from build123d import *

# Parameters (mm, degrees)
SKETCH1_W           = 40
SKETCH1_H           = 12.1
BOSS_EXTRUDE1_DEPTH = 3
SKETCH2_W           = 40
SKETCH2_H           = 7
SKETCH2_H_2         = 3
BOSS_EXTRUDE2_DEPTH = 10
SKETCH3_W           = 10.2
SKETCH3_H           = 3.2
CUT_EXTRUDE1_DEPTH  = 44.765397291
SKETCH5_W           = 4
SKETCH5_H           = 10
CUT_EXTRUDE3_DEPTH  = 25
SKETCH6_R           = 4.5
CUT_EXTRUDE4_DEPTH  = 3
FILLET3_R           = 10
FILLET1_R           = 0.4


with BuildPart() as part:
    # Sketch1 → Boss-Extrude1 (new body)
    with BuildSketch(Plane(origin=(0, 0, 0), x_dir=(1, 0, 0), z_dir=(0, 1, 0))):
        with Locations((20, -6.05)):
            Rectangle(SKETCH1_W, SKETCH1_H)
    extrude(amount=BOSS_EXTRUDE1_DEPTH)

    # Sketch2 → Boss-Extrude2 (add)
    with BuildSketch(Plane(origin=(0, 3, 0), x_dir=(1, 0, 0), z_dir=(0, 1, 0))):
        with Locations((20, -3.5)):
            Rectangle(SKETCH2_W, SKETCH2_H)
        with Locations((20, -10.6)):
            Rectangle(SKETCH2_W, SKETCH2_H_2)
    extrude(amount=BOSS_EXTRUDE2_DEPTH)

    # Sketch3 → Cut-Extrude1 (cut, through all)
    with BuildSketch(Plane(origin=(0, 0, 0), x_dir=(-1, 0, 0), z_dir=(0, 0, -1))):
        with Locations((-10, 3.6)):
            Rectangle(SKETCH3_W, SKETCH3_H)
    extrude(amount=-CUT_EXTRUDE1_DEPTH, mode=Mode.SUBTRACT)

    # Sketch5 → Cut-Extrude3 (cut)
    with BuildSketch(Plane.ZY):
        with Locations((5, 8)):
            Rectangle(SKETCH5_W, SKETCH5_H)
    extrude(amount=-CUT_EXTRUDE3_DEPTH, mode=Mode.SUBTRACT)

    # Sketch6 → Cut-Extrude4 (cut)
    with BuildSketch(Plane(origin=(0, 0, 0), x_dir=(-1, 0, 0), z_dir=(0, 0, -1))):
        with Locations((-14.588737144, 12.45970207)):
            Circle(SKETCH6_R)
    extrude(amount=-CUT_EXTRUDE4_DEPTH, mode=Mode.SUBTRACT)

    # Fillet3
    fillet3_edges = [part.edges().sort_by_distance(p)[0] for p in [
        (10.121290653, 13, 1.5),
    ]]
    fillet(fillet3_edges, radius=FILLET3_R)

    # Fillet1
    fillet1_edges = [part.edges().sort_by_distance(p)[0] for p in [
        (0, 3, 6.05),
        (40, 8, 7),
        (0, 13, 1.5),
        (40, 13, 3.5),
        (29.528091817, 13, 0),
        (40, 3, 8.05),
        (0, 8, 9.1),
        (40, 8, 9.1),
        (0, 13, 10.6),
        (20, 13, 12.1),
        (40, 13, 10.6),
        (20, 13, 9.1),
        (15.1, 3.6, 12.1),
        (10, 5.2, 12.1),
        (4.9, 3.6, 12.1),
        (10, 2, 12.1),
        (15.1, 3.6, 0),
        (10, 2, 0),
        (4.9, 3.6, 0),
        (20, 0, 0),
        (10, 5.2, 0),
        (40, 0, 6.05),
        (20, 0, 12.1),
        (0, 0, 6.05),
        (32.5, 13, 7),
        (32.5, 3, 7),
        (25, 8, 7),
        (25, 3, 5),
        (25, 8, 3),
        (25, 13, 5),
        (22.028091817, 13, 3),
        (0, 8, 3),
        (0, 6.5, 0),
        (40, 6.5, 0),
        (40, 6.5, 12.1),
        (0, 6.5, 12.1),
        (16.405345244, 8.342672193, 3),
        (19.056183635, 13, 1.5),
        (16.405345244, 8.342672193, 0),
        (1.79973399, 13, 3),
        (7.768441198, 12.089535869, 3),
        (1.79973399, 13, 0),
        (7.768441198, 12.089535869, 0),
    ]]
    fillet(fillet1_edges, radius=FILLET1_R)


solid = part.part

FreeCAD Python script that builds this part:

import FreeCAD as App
import Part
import Sketcher
Q = App.Units.Quantity


def edges_at(feature, points):
    """Names of the edges that pass closest to the given points."""
    edges = feature.Shape.Edges
    near = lambda p: min(range(len(edges)), key=lambda i: edges[i].distToShape(Part.Vertex(*p))[0])
    return sorted({f"Edge{near(p) + 1}" for p in points})

doc = App.newDocument("Part")
params = doc.addObject("Spreadsheet::Sheet", "Params")
for row, (alias, value) in enumerate([
    ("sketch1_width", "40 mm"),
    ("sketch1_height", "12.1 mm"),
    ("pad1_length", "3 mm"),
    ("sketch2_width", "40 mm"),
    ("sketch2_height", "7 mm"),
    ("sketch2_height2", "3 mm"),
    ("pad2_length", "10 mm"),
    ("sketch3_width", "10.2 mm"),
    ("sketch3_height", "3.2 mm"),
    ("sketch4_width", "10 mm"),
    ("sketch4_height", "4 mm"),
    ("pocket2_length", "25 mm"),
    ("sketch5_diameter", "9 mm"),
    ("pocket3_length", "3 mm"),
    ("fillet_radius", "10 mm"),
    ("fillet2_radius", "0.4 mm"),
], start=1):
    params.set(f"A{row}", alias)
    params.set(f"B{row}", "=" + value)
    params.setAlias(f"B{row}", alias)

body = doc.addObject("PartDesign::Body", "Body")

# Sketch on XZ plane
sketch1 = body.newObject("Sketcher::SketchObject", "Sketch")
sketch1.AttachmentSupport = (doc.getObject("XZ_Plane"), [""])
sketch1.MapMode = "FlatFace"
sketch1.addGeometry(Part.LineSegment(App.Vector(0, 0, 0), App.Vector(0, 12.1, 0)), False)
sketch1.addGeometry(Part.LineSegment(App.Vector(0, 12.1, 0), App.Vector(40, 12.1, 0)), False)
sketch1.addGeometry(Part.LineSegment(App.Vector(40, 12.1, 0), App.Vector(40, 0, 0)), False)
sketch1.addGeometry(Part.LineSegment(App.Vector(40, 0, 0), App.Vector(0, 0, 0)), False)
sketch1.addConstraint(Sketcher.Constraint("Coincident", 0, 2, 1, 1))
sketch1.addConstraint(Sketcher.Constraint("Coincident", 1, 2, 2, 1))
sketch1.addConstraint(Sketcher.Constraint("Coincident", 2, 2, 3, 1))
sketch1.addConstraint(Sketcher.Constraint("Coincident", 3, 2, 0, 1))
sketch1.addConstraint(Sketcher.Constraint("Vertical", 0))
sketch1.addConstraint(Sketcher.Constraint("Horizontal", 1))
sketch1.addConstraint(Sketcher.Constraint("Vertical", 2))
sketch1.addConstraint(Sketcher.Constraint("Horizontal", 3))
sketch1.addConstraint(Sketcher.Constraint("Coincident", 3, 2, -1, 1))
sketch1.addConstraint(Sketcher.Constraint("DistanceX", 1, 1, 1, 2, Q("40 mm")))
sketch1.addConstraint(Sketcher.Constraint("DistanceY", 0, 1, 0, 2, Q("12.1 mm")))
sketch1.setExpression("Constraints[9]", "Params.sketch1_width")
sketch1.setExpression("Constraints[10]", "Params.sketch1_height")
pad1 = body.newObject("PartDesign::Pad", "Pad")
pad1.Profile = sketch1
pad1.setExpression("Length", "Params.pad1_length")
pad1.Reversed = True

# Sketch on XZ plane
sketch2 = body.newObject("Sketcher::SketchObject", "Sketch001")
sketch2.AttachmentSupport = (doc.getObject("XZ_Plane"), [""])
sketch2.MapMode = "FlatFace"
sketch2.AttachmentOffset = App.Placement(App.Vector(0, 0, -3), App.Rotation())
sketch2.addGeometry(Part.LineSegment(App.Vector(0, 0, 0), App.Vector(0, 7, 0)), False)
sketch2.addGeometry(Part.LineSegment(App.Vector(0, 7, 0), App.Vector(40, 7, 0)), False)
sketch2.addGeometry(Part.LineSegment(App.Vector(40, 7, 0), App.Vector(40, 0, 0)), False)
sketch2.addGeometry(Part.LineSegment(App.Vector(40, 0, 0), App.Vector(0, 0, 0)), False)
sketch2.addGeometry(Part.LineSegment(App.Vector(0, 9.1, 0), App.Vector(0, 12.1, 0)), False)
sketch2.addGeometry(Part.LineSegment(App.Vector(0, 12.1, 0), App.Vector(40, 12.1, 0)), False)
sketch2.addGeometry(Part.LineSegment(App.Vector(40, 12.1, 0), App.Vector(40, 9.1, 0)), False)
sketch2.addGeometry(Part.LineSegment(App.Vector(40, 9.1, 0), App.Vector(0, 9.1, 0)), False)
sketch2.addConstraint(Sketcher.Constraint("Coincident", 0, 2, 1, 1))
sketch2.addConstraint(Sketcher.Constraint("Coincident", 1, 2, 2, 1))
sketch2.addConstraint(Sketcher.Constraint("Coincident", 2, 2, 3, 1))
sketch2.addConstraint(Sketcher.Constraint("Coincident", 3, 2, 0, 1))
sketch2.addConstraint(Sketcher.Constraint("Coincident", 4, 2, 5, 1))
sketch2.addConstraint(Sketcher.Constraint("Coincident", 5, 2, 6, 1))
sketch2.addConstraint(Sketcher.Constraint("Coincident", 6, 2, 7, 1))
sketch2.addConstraint(Sketcher.Constraint("Coincident", 7, 2, 4, 1))
sketch2.addConstraint(Sketcher.Constraint("Vertical", 0))
sketch2.addConstraint(Sketcher.Constraint("Horizontal", 1))
sketch2.addConstraint(Sketcher.Constraint("Vertical", 2))
sketch2.addConstraint(Sketcher.Constraint("Horizontal", 3))
sketch2.addConstraint(Sketcher.Constraint("Vertical", 4))
sketch2.addConstraint(Sketcher.Constraint("Horizontal", 5))
sketch2.addConstraint(Sketcher.Constraint("Vertical", 6))
sketch2.addConstraint(Sketcher.Constraint("Horizontal", 7))
sketch2.addConstraint(Sketcher.Constraint("Coincident", 3, 2, -1, 1))
sketch2.addConstraint(Sketcher.Constraint("PointOnObject", 4, 2, -2))
sketch2.addConstraint(Sketcher.Constraint("Vertical", 2, 2, 5, 2))
sketch2.addConstraint(Sketcher.Constraint("DistanceX", 1, 1, 1, 2, Q("40 mm")))
sketch2.addConstraint(Sketcher.Constraint("DistanceY", 0, 1, 0, 2, Q("7 mm")))
sketch2.addConstraint(Sketcher.Constraint("DistanceY", 4, 1, 4, 2, Q("3 mm")))
sketch2.addConstraint(Sketcher.Constraint("DistanceY", -1, 1, 4, 2, Q("12.1 mm")))
sketch2.setExpression("Constraints[19]", "Params.sketch2_width")
sketch2.setExpression("Constraints[20]", "Params.sketch2_height")
sketch2.setExpression("Constraints[21]", "Params.sketch2_height2")
pad2 = body.newObject("PartDesign::Pad", "Pad001")
pad2.Profile = sketch2
pad2.setExpression("Length", "Params.pad2_length")
pad2.Reversed = True

# Sketch on XY plane
sketch3 = body.newObject("Sketcher::SketchObject", "Sketch002")
sketch3.AttachmentSupport = (doc.getObject("XY_Plane"), [""])
sketch3.MapMode = "FlatFace"
sketch3.addGeometry(Part.LineSegment(App.Vector(15.1, 5.2, 0), App.Vector(15.1, 2, 0)), False)
sketch3.addGeometry(Part.LineSegment(App.Vector(15.1, 2, 0), App.Vector(4.9, 2, 0)), False)
sketch3.addGeometry(Part.LineSegment(App.Vector(4.9, 2, 0), App.Vector(4.9, 5.2, 0)), False)
sketch3.addGeometry(Part.LineSegment(App.Vector(4.9, 5.2, 0), App.Vector(15.1, 5.2, 0)), False)
sketch3.addConstraint(Sketcher.Constraint("Coincident", 0, 2, 1, 1))
sketch3.addConstraint(Sketcher.Constraint("Coincident", 1, 2, 2, 1))
sketch3.addConstraint(Sketcher.Constraint("Coincident", 2, 2, 3, 1))
sketch3.addConstraint(Sketcher.Constraint("Coincident", 3, 2, 0, 1))
sketch3.addConstraint(Sketcher.Constraint("Vertical", 0))
sketch3.addConstraint(Sketcher.Constraint("Horizontal", 1))
sketch3.addConstraint(Sketcher.Constraint("Vertical", 2))
sketch3.addConstraint(Sketcher.Constraint("Horizontal", 3))
sketch3.addConstraint(Sketcher.Constraint("DistanceX", 1, 2, 1, 1, Q("10.2 mm")))
sketch3.addConstraint(Sketcher.Constraint("DistanceY", 0, 2, 0, 1, Q("3.2 mm")))
sketch3.addConstraint(Sketcher.Constraint("DistanceY", -1, 1, 0, 2, Q("2 mm")))
sketch3.addConstraint(Sketcher.Constraint("DistanceX", -1, 1, 0, 2, Q("15.1 mm")))
sketch3.setExpression("Constraints[8]", "Params.sketch3_width")
sketch3.setExpression("Constraints[9]", "Params.sketch3_height")
pocket1 = body.newObject("PartDesign::Pocket", "Pocket")
pocket1.Profile = sketch3
pocket1.Type = "ThroughAll"
pocket1.Reversed = True

# Sketch on YZ plane
sketch4 = body.newObject("Sketcher::SketchObject", "Sketch003")
sketch4.AttachmentSupport = (doc.getObject("YZ_Plane"), [""])
sketch4.MapMode = "FlatFace"
sketch4.addGeometry(Part.LineSegment(App.Vector(13, 3, 0), App.Vector(3, 3, 0)), False)
sketch4.addGeometry(Part.LineSegment(App.Vector(3, 3, 0), App.Vector(3, 7, 0)), False)
sketch4.addGeometry(Part.LineSegment(App.Vector(3, 7, 0), App.Vector(13, 7, 0)), False)
sketch4.addGeometry(Part.LineSegment(App.Vector(13, 7, 0), App.Vector(13, 3, 0)), False)
sketch4.addConstraint(Sketcher.Constraint("Coincident", 0, 2, 1, 1))
sketch4.addConstraint(Sketcher.Constraint("Coincident", 1, 2, 2, 1))
sketch4.addConstraint(Sketcher.Constraint("Coincident", 2, 2, 3, 1))
sketch4.addConstraint(Sketcher.Constraint("Coincident", 3, 2, 0, 1))
sketch4.addConstraint(Sketcher.Constraint("Horizontal", 0))
sketch4.addConstraint(Sketcher.Constraint("Vertical", 1))
sketch4.addConstraint(Sketcher.Constraint("Horizontal", 2))
sketch4.addConstraint(Sketcher.Constraint("Vertical", 3))
sketch4.addConstraint(Sketcher.Constraint("DistanceX", 0, 2, 0, 1, Q("10 mm")))
sketch4.addConstraint(Sketcher.Constraint("DistanceY", 1, 1, 1, 2, Q("4 mm")))
sketch4.addConstraint(Sketcher.Constraint("DistanceX", -1, 1, 0, 2, Q("3 mm")))
sketch4.addConstraint(Sketcher.Constraint("DistanceY", -1, 1, 0, 2, Q("3 mm")))
sketch4.setExpression("Constraints[8]", "Params.sketch4_width")
sketch4.setExpression("Constraints[9]", "Params.sketch4_height")
pocket2 = body.newObject("PartDesign::Pocket", "Pocket001")
pocket2.Profile = sketch4
pocket2.setExpression("Length", "Params.pocket2_length")
pocket2.Reversed = True

# Sketch on XY plane
sketch5 = body.newObject("Sketcher::SketchObject", "Sketch004")
sketch5.AttachmentSupport = (doc.getObject("XY_Plane"), [""])
sketch5.MapMode = "FlatFace"
sketch5.addGeometry(Part.Circle(App.Vector(14.588737, 12.459702, 0), App.Vector(0, 0, 1), 4.5), False)
sketch5.addConstraint(Sketcher.Constraint("Diameter", 0, Q("9 mm")))
sketch5.addConstraint(Sketcher.Constraint("DistanceX", -1, 1, 0, 3, Q("14.588737 mm")))
sketch5.addConstraint(Sketcher.Constraint("DistanceY", -1, 1, 0, 3, Q("12.459702 mm")))
sketch5.setExpression("Constraints[0]", "Params.sketch5_diameter")
pocket3 = body.newObject("PartDesign::Pocket", "Pocket002")
pocket3.Profile = sketch5
pocket3.setExpression("Length", "Params.pocket3_length")
pocket3.Reversed = True
doc.recompute()

fillet = body.newObject("PartDesign::Fillet", "Fillet")
fillet.Base = (pocket3, edges_at(pocket3, [(10.121, 13, 1.5)]))
fillet.setExpression("Radius", "Params.fillet_radius")
doc.recompute()

fillet2 = body.newObject("PartDesign::Fillet", "Fillet001")
fillet2.Base = (fillet, edges_at(fillet, [
    (0, 3, 6.05),
    (40, 8, 7),
    (0, 13, 1.5),
    (40, 13, 3.5),
    (29.528, 13, 0),
    (40, 3, 8.05),
    (0, 8, 9.1),
    (40, 8, 9.1),
    (0, 13, 10.6),
    (20, 13, 12.1),
    (40, 13, 10.6),
    (20, 13, 9.1),
    (15.1, 3.6, 12.1),
    (10, 5.2, 12.1),
    (4.9, 3.6, 12.1),
    (10, 2, 12.1),
    (15.1, 3.6, 0),
    (10, 2, 0),
    (4.9, 3.6, 0),
    (20, 0, 0),
    (10, 5.2, 0),
    (40, 0, 6.05),
    (20, 0, 12.1),
    (0, 0, 6.05),
    (32.5, 13, 7),
    (32.5, 3, 7),
    (25, 8, 7),
    (25, 3, 5),
    (25, 8, 3),
    (25, 13, 5),
    (22.028, 13, 3),
    (0, 8, 3),
    (0, 6.5, 0),
    (40, 6.5, 0),
    (40, 6.5, 12.1),
    (0, 6.5, 12.1),
    (16.405, 8.343, 3),
    (19.056, 13, 1.5),
    (16.405, 8.343, 0),
    (1.8, 13, 3),
    (7.768, 12.09, 3),
    (1.8, 13, 0),
    (7.768, 12.09, 0),
]))
fillet2.setExpression("Radius", "Params.fillet2_radius")

doc.recompute()
